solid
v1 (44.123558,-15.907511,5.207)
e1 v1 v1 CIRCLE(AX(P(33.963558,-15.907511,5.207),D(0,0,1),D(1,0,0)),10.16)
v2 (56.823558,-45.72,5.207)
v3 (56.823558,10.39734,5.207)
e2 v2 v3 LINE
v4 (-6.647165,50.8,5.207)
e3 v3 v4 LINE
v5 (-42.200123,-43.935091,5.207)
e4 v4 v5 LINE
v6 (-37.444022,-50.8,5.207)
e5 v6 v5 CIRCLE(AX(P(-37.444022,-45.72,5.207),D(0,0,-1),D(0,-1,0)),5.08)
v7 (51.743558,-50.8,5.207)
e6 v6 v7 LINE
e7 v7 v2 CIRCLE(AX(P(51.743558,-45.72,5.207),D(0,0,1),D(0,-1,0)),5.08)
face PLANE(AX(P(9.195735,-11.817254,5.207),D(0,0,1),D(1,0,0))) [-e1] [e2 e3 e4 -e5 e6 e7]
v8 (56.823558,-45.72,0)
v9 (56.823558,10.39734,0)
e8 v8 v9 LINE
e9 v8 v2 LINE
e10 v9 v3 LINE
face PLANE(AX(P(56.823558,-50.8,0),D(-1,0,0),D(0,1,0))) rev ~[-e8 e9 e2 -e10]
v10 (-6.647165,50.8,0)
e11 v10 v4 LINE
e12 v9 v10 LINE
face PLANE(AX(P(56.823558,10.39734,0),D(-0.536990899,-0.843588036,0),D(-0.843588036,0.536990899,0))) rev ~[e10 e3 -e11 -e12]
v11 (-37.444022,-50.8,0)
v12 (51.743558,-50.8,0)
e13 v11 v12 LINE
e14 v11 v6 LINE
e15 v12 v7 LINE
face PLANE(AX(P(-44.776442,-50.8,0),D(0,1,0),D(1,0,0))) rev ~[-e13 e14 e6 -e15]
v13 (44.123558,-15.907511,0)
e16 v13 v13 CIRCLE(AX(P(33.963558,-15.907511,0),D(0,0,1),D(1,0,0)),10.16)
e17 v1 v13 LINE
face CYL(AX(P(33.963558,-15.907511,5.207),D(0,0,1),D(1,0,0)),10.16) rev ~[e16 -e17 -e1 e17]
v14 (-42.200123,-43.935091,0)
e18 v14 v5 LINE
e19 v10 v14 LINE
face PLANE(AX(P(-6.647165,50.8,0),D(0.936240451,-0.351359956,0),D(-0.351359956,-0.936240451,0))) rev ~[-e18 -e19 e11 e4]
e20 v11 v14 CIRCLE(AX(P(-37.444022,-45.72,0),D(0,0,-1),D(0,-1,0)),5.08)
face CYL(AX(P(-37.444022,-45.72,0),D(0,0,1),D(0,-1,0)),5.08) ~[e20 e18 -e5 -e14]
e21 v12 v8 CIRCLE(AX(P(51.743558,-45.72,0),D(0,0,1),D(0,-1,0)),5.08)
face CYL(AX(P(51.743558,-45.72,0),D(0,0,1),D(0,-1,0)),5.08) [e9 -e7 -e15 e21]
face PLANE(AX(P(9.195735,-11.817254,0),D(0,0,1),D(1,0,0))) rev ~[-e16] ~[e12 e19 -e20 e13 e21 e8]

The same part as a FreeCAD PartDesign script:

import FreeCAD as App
import Part
import Sketcher

V = App.Vector
Q = App.Units.Quantity


def edges_at(feature, points):
    """Names of the edges that pass closest to the given points."""
    edges = feature.Shape.Edges
    near = lambda p: min(range(len(edges)), key=lambda i: edges[i].distToShape(Part.Vertex(*p))[0])
    return sorted({f"Edge{near(p) + 1}" for p in points})

doc = App.newDocument("Part")
body = doc.addObject("PartDesign::Body", "Body")

# Sketch on XY plane
sketch1 = doc.addObject("Sketcher::SketchObject", "Sketch")
body.addObject(sketch1)
sketch1.AttachmentSupport = (doc.XY_Plane, [""])
sketch1.MapMode = "FlatFace"
sketch1.addGeometry([
    Part.LineSegment(V(-45, -51, 0), V(57, -51, 0)),
    Part.LineSegment(V(57, -51, 0), V(57, 10, 0)),
    Part.LineSegment(V(57, 10, 0), V(-7, 51, 0)),
    Part.LineSegment(V(-7, 51, 0), V(-45, -51, 0)),
], False)
sketch1.addConstraint([
    Sketcher.Constraint("Coincident", 0, 2, 1, 1),
    Sketcher.Constraint("Coincident", 1, 2, 2, 1),
    Sketcher.Constraint("Coincident", 2, 2, 3, 1),
    Sketcher.Constraint("Coincident", 3, 2, 0, 1),
    Sketcher.Constraint("Horizontal", 0),
    Sketcher.Constraint("Vertical", 1),
    Sketcher.Constraint("DistanceX", 0, 1, 0, 2, Q("4 in")),
    Sketcher.Constraint("DistanceY", 0, 2, -1, 1, Q("2 in")),
    Sketcher.Constraint("DistanceY", -1, 1, 2, 2, Q("2 in")),
    Sketcher.Constraint("DistanceY", 1, 1, 1, 2, Q("61.19734 mm")),
    Sketcher.Constraint("Distance", 3, Q("108.519131 mm")),
    Sketcher.Constraint("DistanceX", -1, 1, 0, 2, Q("56.823558 mm")),
])
pad1 = doc.addObject("PartDesign::Pad", "Pad")
body.addObject(pad1)
pad1.Profile = sketch1
pad1.Length = Q("0.205 in")

# Sketch on XY plane
sketch2 = doc.addObject("Sketcher::SketchObject", "Sketch001")
body.addObject(sketch2)
sketch2.AttachmentSupport = (doc.XY_Plane, [""])
sketch2.MapMode = "FlatFace"
sketch2.AttachmentOffset = App.Placement(V(0, 0, 0.205 * 25.4), App.Rotation())
sketch2.addGeometry(Part.Circle(V(34, -16, 0), V(0, 0, 1), 10), False)
sketch2.addConstraint([
    Sketcher.Constraint("Diameter", 0, Q("0.8 in")),
    Sketcher.Constraint("DistanceY", 0, 3, -1, 1, Q("15.907511 mm")),
    Sketcher.Constraint("DistanceX", -1, 1, 0, 3, Q("33.963558 mm")),
])
pocket1 = doc.addObject("PartDesign::Pocket", "Pocket")
body.addObject(pocket1)
pocket1.Profile = sketch2
pocket1.Type = "ThroughAll"
doc.recompute()

fillet = doc.addObject("PartDesign::Fillet", "Fillet")
body.addObject(fillet)
fillet.Base = (pocket1, edges_at(pocket1, [(56.824, -50.8, 2.603), (-44.776, -50.8, 2.603)]))
fillet.Radius = Q("0.2 in")

doc.recompute()
